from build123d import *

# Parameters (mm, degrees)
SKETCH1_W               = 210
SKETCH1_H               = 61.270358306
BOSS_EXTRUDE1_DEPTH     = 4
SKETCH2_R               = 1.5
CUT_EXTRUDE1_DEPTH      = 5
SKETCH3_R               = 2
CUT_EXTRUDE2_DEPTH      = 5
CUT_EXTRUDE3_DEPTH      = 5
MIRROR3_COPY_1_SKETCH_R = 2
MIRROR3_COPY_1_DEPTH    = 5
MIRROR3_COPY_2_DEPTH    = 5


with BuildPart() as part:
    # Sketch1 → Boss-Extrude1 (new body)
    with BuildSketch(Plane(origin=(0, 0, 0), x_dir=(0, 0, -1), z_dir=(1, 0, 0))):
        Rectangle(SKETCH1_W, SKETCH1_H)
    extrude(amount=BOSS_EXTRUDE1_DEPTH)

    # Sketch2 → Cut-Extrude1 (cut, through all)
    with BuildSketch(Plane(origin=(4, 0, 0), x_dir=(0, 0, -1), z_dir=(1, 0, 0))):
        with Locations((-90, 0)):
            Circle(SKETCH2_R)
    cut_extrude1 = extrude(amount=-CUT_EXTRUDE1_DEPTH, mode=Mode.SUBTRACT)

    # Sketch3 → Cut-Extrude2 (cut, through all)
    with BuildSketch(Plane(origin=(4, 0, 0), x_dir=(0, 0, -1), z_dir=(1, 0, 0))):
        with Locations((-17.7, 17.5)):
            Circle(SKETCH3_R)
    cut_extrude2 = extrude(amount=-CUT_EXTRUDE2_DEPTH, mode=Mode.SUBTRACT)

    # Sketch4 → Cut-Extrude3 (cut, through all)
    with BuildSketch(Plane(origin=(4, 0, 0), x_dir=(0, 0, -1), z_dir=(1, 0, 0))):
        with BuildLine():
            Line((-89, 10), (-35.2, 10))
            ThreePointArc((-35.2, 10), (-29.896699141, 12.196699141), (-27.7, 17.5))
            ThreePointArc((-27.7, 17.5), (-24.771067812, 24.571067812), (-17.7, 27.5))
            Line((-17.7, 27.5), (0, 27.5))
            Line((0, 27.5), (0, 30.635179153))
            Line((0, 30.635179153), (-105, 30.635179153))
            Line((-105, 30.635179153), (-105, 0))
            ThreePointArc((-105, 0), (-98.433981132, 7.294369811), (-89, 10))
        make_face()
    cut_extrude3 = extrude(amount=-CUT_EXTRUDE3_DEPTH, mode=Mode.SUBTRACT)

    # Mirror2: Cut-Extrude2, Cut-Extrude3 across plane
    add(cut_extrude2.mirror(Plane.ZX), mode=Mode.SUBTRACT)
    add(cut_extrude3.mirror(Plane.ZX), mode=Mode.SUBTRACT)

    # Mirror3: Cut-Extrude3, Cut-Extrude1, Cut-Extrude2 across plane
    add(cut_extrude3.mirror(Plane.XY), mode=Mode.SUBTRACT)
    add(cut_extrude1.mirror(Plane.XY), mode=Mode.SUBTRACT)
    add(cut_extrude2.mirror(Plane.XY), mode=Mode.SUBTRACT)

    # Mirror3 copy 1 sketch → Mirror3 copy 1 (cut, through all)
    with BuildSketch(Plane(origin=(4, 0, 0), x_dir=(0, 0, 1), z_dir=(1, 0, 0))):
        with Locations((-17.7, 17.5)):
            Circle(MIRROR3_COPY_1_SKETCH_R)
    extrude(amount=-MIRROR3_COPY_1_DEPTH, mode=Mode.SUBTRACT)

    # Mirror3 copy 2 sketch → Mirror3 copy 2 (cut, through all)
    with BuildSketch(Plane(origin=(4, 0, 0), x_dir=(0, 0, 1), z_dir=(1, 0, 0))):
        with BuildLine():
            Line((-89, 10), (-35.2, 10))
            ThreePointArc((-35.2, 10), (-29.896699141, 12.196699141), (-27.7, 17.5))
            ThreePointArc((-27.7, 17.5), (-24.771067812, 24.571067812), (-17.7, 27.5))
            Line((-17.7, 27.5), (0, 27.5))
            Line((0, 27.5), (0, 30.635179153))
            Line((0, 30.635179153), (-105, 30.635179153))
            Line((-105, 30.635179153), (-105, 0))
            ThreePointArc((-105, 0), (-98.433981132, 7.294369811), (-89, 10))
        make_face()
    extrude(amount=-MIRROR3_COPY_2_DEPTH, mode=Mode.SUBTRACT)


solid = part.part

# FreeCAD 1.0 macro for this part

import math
import FreeCAD as App
import Part
import Sketcher


def add_polygon(sketch, points):
    """Adds a closed chain of lines whose ends are joined by coincident constraints."""
    first, n = sketch.GeometryCount, len(points)
    for a, b in zip(points, points[1:] + points[:1]):
        sketch.addGeometry(Part.LineSegment(App.Vector(*a, 0), App.Vector(*b, 0)), False)
    for i in range(n):
        sketch.addConstraint(Sketcher.Constraint("Coincident", first + i, 2, first + (i + 1) % n, 1))

doc = App.newDocument("Part")
params = doc.addObject("Spreadsheet::Sheet", "Params")
for row, (alias, value) in enumerate([
    ("sketch1_height", "210 mm"),
    ("pad1_length", "4 mm"),
    ("sketch2_diameter", "3 mm"),
    ("sketch3_diameter", "4 mm"),
    ("sketch4_radius", "10 mm"),
    ("sketch4_radius2", "7.5 mm"),
    ("sketch4_radius3", "17.8 mm"),
    ("sketch4_height", "105 mm"),
    ("sketch4_height2", "53.8 mm"),
    ("sketch5_diameter", "4 mm"),
    ("sketch6_radius", "10 mm"),
    ("sketch6_radius2", "7.5 mm"),
    ("sketch6_radius3", "17.8 mm"),
    ("sketch6_height", "105 mm"),
    ("sketch6_height2", "53.8 mm"),
], start=1):
    params.set(f"A{row}", alias)
    params.set(f"B{row}", "=" + value)
    params.setAlias(f"B{row}", alias)

body = doc.addObject("PartDesign::Body", "Body")

sketch1 = body.newObject("Sketcher::SketchObject", "Sketch")
sketch1.AttachmentSupport = (doc.getObject("YZ_Plane"), [""])
sketch1.MapMode = "FlatFace"
add_polygon(sketch1, [(31, 105), (-31, 105), (-31, -105), (31, -105)])
sketch1.addConstraint([
    Sketcher.Constraint("Horizontal", 0),
    Sketcher.Constraint("Vertical", 1),
    Sketcher.Constraint("Horizontal", 2),
    Sketcher.Constraint("Vertical", 3),
    Sketcher.Constraint("Symmetric", 0, 2, 2, 2, -1, 1),
    Sketcher.Constraint("DistanceY", 1, 2, 1, 1, 210.0),
    Sketcher.Constraint("DistanceX", 0, 2, 0, 1, 61.270358),
])
sketch1.setExpression("Constraints[9]", "Params.sketch1_height")
pad1 = body.newObject("PartDesign::Pad", "Pad")
pad1.Profile = sketch1
pad1.setExpression("Length", "Params.pad1_length")

sketch2 = body.newObject("Sketcher::SketchObject", "Sketch001")
sketch2.AttachmentSupport = (doc.getObject("YZ_Plane"), [""])
sketch2.MapMode = "FlatFace"
sketch2.AttachmentOffset = App.Placement(App.Vector(0, 0, 4), App.Rotation())
sketch2.addGeometry(Part.Circle(App.Vector(0, 90, 0), App.Vector(0, 0, 1), 1.5), False)
sketch2.addConstraint([
    Sketcher.Constraint("PointOnObject", 0, 3, -2),
    Sketcher.Constraint("Diameter", 0, 3.0),
    Sketcher.Constraint("DistanceY", -1, 1, 0, 3, 90.0),
])
sketch2.setExpression("Constraints[1]", "Params.sketch2_diameter")
pocket1 = body.newObject("PartDesign::Pocket", "Pocket")
pocket1.Profile = sketch2
pocket1.Type = "ThroughAll"

sketch3 = body.newObject("Sketcher::SketchObject", "Sketch002")
sketch3.AttachmentSupport = (doc.getObject("YZ_Plane"), [""])
sketch3.MapMode = "FlatFace"
sketch3.AttachmentOffset = App.Placement(App.Vector(0, 0, 4), App.Rotation())
sketch3.addGeometry(Part.Circle(App.Vector(17.5, 17.7, 0), App.Vector(0, 0, 1), 2), False)
sketch3.addConstraint([
    Sketcher.Constraint("Diameter", 0, 4.0),
    Sketcher.Constraint("DistanceX", -1, 1, 0, 3, 17.5),
    Sketcher.Constraint("DistanceY", -1, 1, 0, 3, 17.7),
])
sketch3.setExpression("Constraints[0]", "Params.sketch3_diameter")
pocket2 = body.newObject("PartDesign::Pocket", "Pocket001")
pocket2.Profile = sketch3
pocket2.Type = "ThroughAll"

sketch4 = body.newObject("Sketcher::SketchObject", "Sketch003")
sketch4.AttachmentSupport = (doc.getObject("YZ_Plane"), [""])
sketch4.MapMode = "FlatFace"
sketch4.AttachmentOffset = App.Placement(App.Vector(0, 0, 4), App.Rotation())
sketch4.addGeometry([
    Part.LineSegment(App.Vector(10, 89, 0), App.Vector(10, 35.2, 0)),
    Part.ArcOfCircle(Part.Circle(App.Vector(17.5, 35.2, 0), App.Vector(0, 0, 1), 7.5), math.radians(180), math.radians(270)),
    Part.ArcOfCircle(Part.Circle(App.Vector(17.5, 17.7, 0), App.Vector(0, 0, 1), 10), math.radians(0), math.radians(90)),
    Part.LineSegment(App.Vector(27.5, 17.7, 0), App.Vector(27.5, 0, 0)),
    Part.LineSegment(App.Vector(27.5, 0, 0), App.Vector(30.6, 0, 0)),
    Part.LineSegment(App.Vector(30.6, 0, 0), App.Vector(30.6, 105, 0)),
    Part.LineSegment(App.Vector(30.6, 105, 0), App.Vector(0, 105, 0)),
    Part.ArcOfCircle(Part.Circle(App.Vector(-7.8, 89, 0), App.Vector(0, 0, 1), 17.8), math.radians(0), math.radians(64)),
], False)
sketch4.addConstraint([
    Sketcher.Constraint("Tangent", 0, 2, 1, 1),
    Sketcher.Constraint("Tangent", 1, 2, 2, 2),
    Sketcher.Constraint("Tangent", 2, 1, 3, 1),
    Sketcher.Constraint("Coincident", 3, 2, 4, 1),
    Sketcher.Constraint("Coincident", 4, 2, 5, 1),
    Sketcher.Constraint("Coincident", 5, 2, 6, 1),
    Sketcher.Constraint("Coincident", 6, 2, 7, 2),
    Sketcher.Constraint("Tangent", 7, 1, 0, 1),
    Sketcher.Constraint("Vertical", 0),
    Sketcher.Constraint("Vertical", 3),
    Sketcher.Constraint("Horizontal", 4),
    Sketcher.Constraint("Vertical", 5),
    Sketcher.Constraint("Horizontal", 6),
    Sketcher.Constraint("PointOnObject", 3, 2, -1),
    Sketcher.Constraint("PointOnObject", 6, 2, -2),
    Sketcher.Constraint("Vertical", 1, 3, 2, 3),
    Sketcher.Constraint("Radius", 2, 10.0),
    Sketcher.Constraint("Radius", 1, 7.5),
    Sketcher.Constraint("Radius", 7, 17.8),
    Sketcher.Constraint("DistanceY", 5, 1, 5, 2, 105.0),
    Sketcher.Constraint("DistanceY", 0, 2, 0, 1, 53.8),
    Sketcher.Constraint("DistanceY", 3, 2, 3, 1, 17.7),
    Sketcher.Constraint("DistanceX", 4, 1, 4, 2, 3.135179),
])
sketch4.setExpression("Constraints[16]", "Params.sketch4_radius")
sketch4.setExpression("Constraints[17]", "Params.sketch4_radius2")
sketch4.setExpression("Constraints[18]", "Params.sketch4_radius3")
sketch4.setExpression("Constraints[19]", "Params.sketch4_height")
sketch4.setExpression("Constraints[20]", "Params.sketch4_height2")
pocket3 = body.newObject("PartDesign::Pocket", "Pocket002")
pocket3.Profile = sketch4
pocket3.Type = "ThroughAll"
doc.recompute()

mirrored = body.newObject("PartDesign::Mirrored", "Mirrored")
mirrored.Originals = [pocket2, pocket3]
mirrored.MirrorPlane = (doc.getObject("XZ_Plane"), [""])
body.Tip = mirrored
doc.recompute()

mirrored2 = body.newObject("PartDesign::Mirrored", "Mirrored001")
mirrored2.Originals = [pocket3, pocket1, pocket2]
mirrored2.MirrorPlane = (doc.getObject("XY_Plane"), [""])
body.Tip = mirrored2

sketch5 = body.newObject("Sketcher::SketchObject", "Sketch004")
sketch5.AttachmentSupport = (doc.getObject("YZ_Plane"), [""])
sketch5.MapMode = "FlatFace"
sketch5.AttachmentOffset = App.Placement(App.Vector(0, 0, 4), App.Rotation())
sketch5.addGeometry(Part.Circle(App.Vector(-17.5, -17.7, 0), App.Vector(0, 0, 1), 2), False)
sketch5.addConstraint([
    Sketcher.Constraint("Diameter", 0, 4.0),
    Sketcher.Constraint("DistanceX", 0, 3, -1, 1, 17.5),
    Sketcher.Constraint("DistanceY", 0, 3, -1, 1, 17.7),
])
sketch5.setExpression("Constraints[0]", "Params.sketch5_diameter")
pocket4 = body.newObject("PartDesign::Pocket", "Pocket003")
pocket4.Profile = sketch5
pocket4.Type = "ThroughAll"

sketch6 = body.newObject("Sketcher::SketchObject", "Sketch005")
sketch6.AttachmentSupport = (doc.getObject("YZ_Plane"), [""])
sketch6.MapMode = "FlatFace"
sketch6.AttachmentOffset = App.Placement(App.Vector(0, 0, 4), App.Rotation())
sketch6.addGeometry([
    Part.LineSegment(App.Vector(-10, -89, 0), App.Vector(-10, -35.2, 0)),
    Part.ArcOfCircle(Part.Circle(App.Vector(-17.5, -35.2, 0), App.Vector(0, 0, 1), 7.5), math.radians(0), math.radians(90)),
    Part.ArcOfCircle(Part.Circle(App.Vector(-17.5, -17.7, 0), App.Vector(0, 0, 1), 10), math.radians(180), math.radians(270)),
    Part.LineSegment(App.Vector(-27.5, -17.7, 0), App.Vector(-27.5, 0, 0)),
    Part.LineSegment(App.Vector(-27.5, 0, 0), App.Vector(-30.6, 0, 0)),
    Part.LineSegment(App.Vector(-30.6, 0, 0), App.Vector(-30.6, -105, 0)),
    Part.LineSegment(App.Vector(-30.6, -105, 0), App.Vector(0, -105, 0)),
    Part.ArcOfCircle(Part.Circle(App.Vector(7.8, -89, 0), App.Vector(0, 0, 1), 17.8), math.radians(-180), math.radians(-116)),
], False)
sketch6.addConstraint([
    Sketcher.Constraint("Tangent", 0, 2, 1, 1),
    Sketcher.Constraint("Tangent", 1, 2, 2, 2),
    Sketcher.Constraint("Tangent", 2, 1, 3, 1),
    Sketcher.Constraint("Coincident", 3, 2, 4, 1),
    Sketcher.Constraint("Coincident", 4, 2, 5, 1),
    Sketcher.Constraint("Coincident", 5, 2, 6, 1),
    Sketcher.Constraint("Coincident", 6, 2, 7, 2),
    Sketcher.Constraint("Tangent", 7, 1, 0, 1),
    Sketcher.Constraint("Vertical", 0),
    Sketcher.Constraint("Vertical", 3),
    Sketcher.Constraint("Horizontal", 4),
    Sketcher.Constraint("Vertical", 5),
    Sketcher.Constraint("Horizontal", 6),
    Sketcher.Constraint("PointOnObject", 3, 2, -1),
    Sketcher.Constraint("PointOnObject", 6, 2, -2),
    Sketcher.Constraint("Vertical", 1, 3, 2, 3),
    Sketcher.Constraint("Radius", 2, 10.0),
    Sketcher.Constraint("Radius", 1, 7.5),
    Sketcher.Constraint("Radius", 7, 17.8),
    Sketcher.Constraint("DistanceY", 5, 2, 5, 1, 105.0),
    Sketcher.Constraint("DistanceY", 0, 1, 0, 2, 53.8),
    Sketcher.Constraint("DistanceY", 3, 1, 3, 2, 17.7),
    Sketcher.Constraint("DistanceX", 4, 2, 4, 1, 3.135179),
])
sketch6.setExpression("Constraints[16]", "Params.sketch6_radius")
sketch6.setExpression("Constraints[17]", "Params.sketch6_radius2")
sketch6.setExpression("Constraints[18]", "Params.sketch6_radius3")
sketch6.setExpression("Constraints[19]", "Params.sketch6_height")
sketch6.setExpression("Constraints[20]", "Params.sketch6_height2")
pocket5 = body.newObject("PartDesign::Pocket", "Pocket004")
pocket5.Profile = sketch6
pocket5.Type = "ThroughAll"

doc.recompute()
